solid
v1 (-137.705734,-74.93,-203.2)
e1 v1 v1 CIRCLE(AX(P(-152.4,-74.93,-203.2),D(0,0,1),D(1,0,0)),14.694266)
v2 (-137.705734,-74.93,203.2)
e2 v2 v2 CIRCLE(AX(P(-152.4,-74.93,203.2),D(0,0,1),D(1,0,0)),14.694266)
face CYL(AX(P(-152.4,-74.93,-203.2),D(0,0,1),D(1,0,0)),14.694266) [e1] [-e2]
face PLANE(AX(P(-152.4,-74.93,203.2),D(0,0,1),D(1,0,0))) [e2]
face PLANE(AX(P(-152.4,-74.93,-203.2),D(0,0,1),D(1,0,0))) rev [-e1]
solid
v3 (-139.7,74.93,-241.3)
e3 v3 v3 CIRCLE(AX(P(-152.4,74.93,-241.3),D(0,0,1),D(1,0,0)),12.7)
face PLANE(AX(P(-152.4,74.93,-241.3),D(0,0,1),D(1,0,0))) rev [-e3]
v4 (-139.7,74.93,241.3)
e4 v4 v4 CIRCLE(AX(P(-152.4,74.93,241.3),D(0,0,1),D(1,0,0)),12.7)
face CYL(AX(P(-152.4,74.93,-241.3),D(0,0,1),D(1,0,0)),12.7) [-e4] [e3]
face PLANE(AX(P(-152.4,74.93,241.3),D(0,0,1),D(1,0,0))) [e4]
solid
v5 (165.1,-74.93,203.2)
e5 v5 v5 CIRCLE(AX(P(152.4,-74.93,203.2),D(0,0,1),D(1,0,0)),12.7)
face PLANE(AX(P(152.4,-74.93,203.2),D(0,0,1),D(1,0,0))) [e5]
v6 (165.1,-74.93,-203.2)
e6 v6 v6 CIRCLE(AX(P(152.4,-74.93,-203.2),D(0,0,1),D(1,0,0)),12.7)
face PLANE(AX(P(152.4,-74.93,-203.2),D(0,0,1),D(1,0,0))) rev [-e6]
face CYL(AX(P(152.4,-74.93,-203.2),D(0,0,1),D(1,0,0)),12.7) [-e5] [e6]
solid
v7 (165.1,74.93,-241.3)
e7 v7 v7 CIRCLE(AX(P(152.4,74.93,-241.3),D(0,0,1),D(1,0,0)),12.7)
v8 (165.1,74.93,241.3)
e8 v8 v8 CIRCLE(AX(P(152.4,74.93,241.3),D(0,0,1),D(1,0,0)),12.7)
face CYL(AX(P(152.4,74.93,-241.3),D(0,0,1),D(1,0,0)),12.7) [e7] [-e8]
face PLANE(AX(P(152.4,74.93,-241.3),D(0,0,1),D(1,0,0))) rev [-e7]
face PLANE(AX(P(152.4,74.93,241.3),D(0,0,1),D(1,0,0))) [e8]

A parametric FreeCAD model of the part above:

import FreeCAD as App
import Part
import Sketcher
Q = App.Units.Quantity

doc = App.newDocument("Part")
body = doc.addObject("PartDesign::Body", "Body")

# Sketch on XY plane
sketch1 = body.newObject("Sketcher::SketchObject", "Sketch")
sketch1.AttachmentSupport = (doc.getObject("XY_Plane"), [""])
sketch1.MapMode = "FlatFace"
sketch1.addGeometry(Part.Circle(App.Vector(152.4, -74.93, 0), App.Vector(0, 0, 1), 12.7), False)
sketch1.addConstraint([
    Sketcher.Constraint("Diameter", 0, Q("1 in")),
    Sketcher.Constraint("DistanceX", -1, 1, 0, 3, Q("6 in")),
    Sketcher.Constraint("DistanceY", 0, 3, -1, 1, Q("2.95 in")),
])
pad1 = body.newObject("PartDesign::Pad", "Pad")
pad1.Profile = sketch1
pad1.Type = "TwoLengths"
pad1.Length = Q("8 in")
pad1.Length2 = Q("8 in")
body2 = doc.addObject("PartDesign::Body", "Body001")

# Sketch on XY plane
sketch2 = body2.newObject("Sketcher::SketchObject", "Sketch001")
sketch2.AttachmentSupport = (doc.getObject("XY_Plane001"), [""])
sketch2.MapMode = "FlatFace"
sketch2.addGeometry(Part.Circle(App.Vector(-152.4, -74.93, 0), App.Vector(0, 0, 1), 14.694266), False)
sketch2.addConstraint([
    Sketcher.Constraint("DistanceX", 0, 3, -1, 1, Q("6 in")),
    Sketcher.Constraint("DistanceY", 0, 3, -1, 1, Q("2.95 in")),
    Sketcher.Constraint("Diameter", 0, 29.388533),
])
pad2 = body2.newObject("PartDesign::Pad", "Pad001")
pad2.Profile = sketch2
pad2.Type = "TwoLengths"
pad2.Length = Q("8 in")
pad2.Length2 = Q("8 in")
body3 = doc.addObject("PartDesign::Body", "Body002")

# Sketch on XY plane
sketch3 = body3.newObject("Sketcher::SketchObject", "Sketch002")
sketch3.AttachmentSupport = (doc.getObject("XY_Plane002"), [""])
sketch3.MapMode = "FlatFace"
sketch3.addGeometry(Part.Circle(App.Vector(-152.4, 74.93, 0), App.Vector(0, 0, 1), 12.7), False)
sketch3.addConstraint([
    Sketcher.Constraint("Diameter", 0, Q("1 in")),
    Sketcher.Constraint("DistanceX", 0, 3, -1, 1, Q("6 in")),
    Sketcher.Constraint("DistanceY", -1, 1, 0, 3, Q("2.95 in")),
])
pad3 = body3.newObject("PartDesign::Pad", "Pad002")
pad3.Profile = sketch3
pad3.Type = "TwoLengths"
pad3.Length = Q("9.5 in")
pad3.Length2 = Q("9.5 in")
body4 = doc.addObject("PartDesign::Body", "Body003")

# Sketch on XY plane
sketch4 = body4.newObject("Sketcher::SketchObject", "Sketch003")
sketch4.AttachmentSupport = (doc.getObject("XY_Plane003"), [""])
sketch4.MapMode = "FlatFace"
sketch4.addGeometry(Part.Circle(App.Vector(152.4, 74.93, 0), App.Vector(0, 0, 1), 12.7), False)
sketch4.addConstraint([
    Sketcher.Constraint("Diameter", 0, Q("1 in")),
    Sketcher.Constraint("DistanceX", -1, 1, 0, 3, Q("6 in")),
    Sketcher.Constraint("DistanceY", -1, 1, 0, 3, Q("2.95 in")),
])
pad4 = body4.newObject("PartDesign::Pad", "Pad003")
pad4.Profile = sketch4
pad4.Type = "TwoLengths"
pad4.Length = Q("9.5 in")
pad4.Length2 = Q("9.5 in")

doc.recompute()
